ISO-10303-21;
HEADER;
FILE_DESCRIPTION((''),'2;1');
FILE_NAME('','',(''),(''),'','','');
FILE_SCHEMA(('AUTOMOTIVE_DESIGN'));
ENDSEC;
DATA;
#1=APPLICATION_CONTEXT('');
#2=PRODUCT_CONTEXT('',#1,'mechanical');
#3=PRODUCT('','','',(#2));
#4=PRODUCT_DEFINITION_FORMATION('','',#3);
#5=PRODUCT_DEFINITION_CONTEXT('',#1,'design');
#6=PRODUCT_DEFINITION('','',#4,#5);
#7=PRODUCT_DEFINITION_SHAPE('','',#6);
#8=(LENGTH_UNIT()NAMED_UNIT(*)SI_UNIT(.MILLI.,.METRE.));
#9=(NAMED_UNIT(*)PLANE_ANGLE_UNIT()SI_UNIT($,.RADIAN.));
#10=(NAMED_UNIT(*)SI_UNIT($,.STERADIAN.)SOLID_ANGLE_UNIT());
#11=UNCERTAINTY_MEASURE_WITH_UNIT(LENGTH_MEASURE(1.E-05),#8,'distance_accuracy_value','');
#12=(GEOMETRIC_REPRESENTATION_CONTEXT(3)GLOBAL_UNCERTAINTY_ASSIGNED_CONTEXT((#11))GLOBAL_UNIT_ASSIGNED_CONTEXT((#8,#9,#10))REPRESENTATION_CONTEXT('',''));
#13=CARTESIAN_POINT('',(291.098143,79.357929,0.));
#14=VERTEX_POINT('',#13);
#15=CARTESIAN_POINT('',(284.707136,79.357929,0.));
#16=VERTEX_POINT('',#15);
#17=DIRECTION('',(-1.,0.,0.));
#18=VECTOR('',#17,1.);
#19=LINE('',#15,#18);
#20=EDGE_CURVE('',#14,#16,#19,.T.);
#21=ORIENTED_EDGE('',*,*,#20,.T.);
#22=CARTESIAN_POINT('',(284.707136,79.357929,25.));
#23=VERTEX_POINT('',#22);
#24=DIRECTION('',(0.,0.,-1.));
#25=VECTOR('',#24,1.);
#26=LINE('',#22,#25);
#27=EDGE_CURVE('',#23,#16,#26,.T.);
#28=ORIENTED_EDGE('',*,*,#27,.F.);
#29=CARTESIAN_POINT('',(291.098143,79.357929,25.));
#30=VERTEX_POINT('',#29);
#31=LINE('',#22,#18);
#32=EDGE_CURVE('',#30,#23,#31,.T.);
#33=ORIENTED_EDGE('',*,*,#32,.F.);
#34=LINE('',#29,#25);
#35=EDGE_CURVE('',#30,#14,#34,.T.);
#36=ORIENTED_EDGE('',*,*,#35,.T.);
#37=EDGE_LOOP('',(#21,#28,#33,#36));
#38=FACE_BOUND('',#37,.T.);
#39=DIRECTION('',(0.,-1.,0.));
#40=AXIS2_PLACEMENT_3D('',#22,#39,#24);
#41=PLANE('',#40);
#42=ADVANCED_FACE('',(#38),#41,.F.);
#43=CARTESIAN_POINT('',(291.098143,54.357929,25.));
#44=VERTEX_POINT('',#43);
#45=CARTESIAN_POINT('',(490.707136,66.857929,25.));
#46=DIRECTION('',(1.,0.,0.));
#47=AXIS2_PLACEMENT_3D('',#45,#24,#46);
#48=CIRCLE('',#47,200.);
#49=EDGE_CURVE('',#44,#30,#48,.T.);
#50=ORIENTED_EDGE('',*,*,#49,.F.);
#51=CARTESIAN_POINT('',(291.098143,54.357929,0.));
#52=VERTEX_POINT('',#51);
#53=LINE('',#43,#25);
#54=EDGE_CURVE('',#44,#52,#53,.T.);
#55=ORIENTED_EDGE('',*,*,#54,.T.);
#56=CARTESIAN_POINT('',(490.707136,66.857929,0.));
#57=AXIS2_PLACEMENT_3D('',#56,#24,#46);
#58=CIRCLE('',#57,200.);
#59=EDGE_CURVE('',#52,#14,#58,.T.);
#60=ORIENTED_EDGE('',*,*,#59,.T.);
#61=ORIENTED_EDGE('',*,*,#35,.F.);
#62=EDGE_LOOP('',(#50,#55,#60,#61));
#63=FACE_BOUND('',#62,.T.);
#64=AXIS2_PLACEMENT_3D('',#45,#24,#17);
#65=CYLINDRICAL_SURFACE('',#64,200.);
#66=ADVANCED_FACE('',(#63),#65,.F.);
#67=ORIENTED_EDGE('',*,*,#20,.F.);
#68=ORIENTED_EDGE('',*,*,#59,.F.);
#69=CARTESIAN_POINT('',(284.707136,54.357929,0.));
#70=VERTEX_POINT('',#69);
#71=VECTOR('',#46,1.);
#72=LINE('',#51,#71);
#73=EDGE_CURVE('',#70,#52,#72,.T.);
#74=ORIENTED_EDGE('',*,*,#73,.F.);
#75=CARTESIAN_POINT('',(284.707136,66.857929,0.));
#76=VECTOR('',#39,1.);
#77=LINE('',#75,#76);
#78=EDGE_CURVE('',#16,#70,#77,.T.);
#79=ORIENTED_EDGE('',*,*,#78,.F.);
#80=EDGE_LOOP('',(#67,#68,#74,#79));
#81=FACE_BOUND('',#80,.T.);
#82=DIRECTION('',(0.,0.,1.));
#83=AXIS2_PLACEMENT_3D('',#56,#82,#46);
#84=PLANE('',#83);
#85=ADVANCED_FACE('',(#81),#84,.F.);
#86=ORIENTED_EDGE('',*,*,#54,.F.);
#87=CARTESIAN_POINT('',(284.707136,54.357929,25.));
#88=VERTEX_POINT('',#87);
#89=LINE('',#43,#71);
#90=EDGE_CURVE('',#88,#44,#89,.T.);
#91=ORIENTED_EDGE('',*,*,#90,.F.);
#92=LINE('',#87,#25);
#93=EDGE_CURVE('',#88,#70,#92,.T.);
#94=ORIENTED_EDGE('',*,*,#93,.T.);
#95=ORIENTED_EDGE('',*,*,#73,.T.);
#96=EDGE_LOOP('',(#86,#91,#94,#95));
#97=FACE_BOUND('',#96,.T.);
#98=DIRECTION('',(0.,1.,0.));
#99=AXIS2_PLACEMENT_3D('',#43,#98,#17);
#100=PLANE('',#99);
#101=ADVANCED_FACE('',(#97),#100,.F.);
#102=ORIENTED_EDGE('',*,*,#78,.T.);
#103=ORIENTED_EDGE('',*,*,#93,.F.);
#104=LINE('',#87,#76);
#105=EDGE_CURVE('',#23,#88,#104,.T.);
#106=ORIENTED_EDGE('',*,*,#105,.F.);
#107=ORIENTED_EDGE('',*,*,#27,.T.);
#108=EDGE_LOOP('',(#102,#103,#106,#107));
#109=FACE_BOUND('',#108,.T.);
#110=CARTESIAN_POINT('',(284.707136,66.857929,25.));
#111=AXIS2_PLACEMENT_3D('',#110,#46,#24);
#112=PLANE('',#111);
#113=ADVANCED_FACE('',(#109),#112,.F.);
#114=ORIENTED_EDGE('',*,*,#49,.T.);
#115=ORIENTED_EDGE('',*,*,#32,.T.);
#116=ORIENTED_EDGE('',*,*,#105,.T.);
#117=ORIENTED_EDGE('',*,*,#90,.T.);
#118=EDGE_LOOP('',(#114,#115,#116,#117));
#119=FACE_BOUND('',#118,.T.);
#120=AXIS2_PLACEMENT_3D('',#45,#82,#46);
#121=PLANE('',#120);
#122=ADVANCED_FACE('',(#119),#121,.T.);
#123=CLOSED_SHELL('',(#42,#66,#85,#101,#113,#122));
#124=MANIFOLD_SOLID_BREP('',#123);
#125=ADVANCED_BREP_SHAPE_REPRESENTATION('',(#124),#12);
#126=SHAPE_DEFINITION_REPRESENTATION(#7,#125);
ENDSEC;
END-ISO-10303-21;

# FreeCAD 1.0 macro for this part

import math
import FreeCAD as App
import Part
import Sketcher

V = App.Vector

doc = App.newDocument("Part")
body = doc.addObject("PartDesign::Body", "Body")

# Sketch on XY plane
sketch1 = body.newObject("Sketcher::SketchObject", "Sketch")
sketch1.AttachmentSupport = (doc.getObject("XY_Plane"), [""])
sketch1.MapMode = "FlatFace"
sketch1.addGeometry([
    Part.LineSegment(V(291.098143, 79.357929, 0), V(284.707136, 79.357929, 0)),
    Part.LineSegment(V(284.707136, 79.357929, 0), V(284.707136, 54.357929, 0)),
    Part.LineSegment(V(284.707136, 54.357929, 0), V(291.098143, 54.357929, 0)),
    Part.ArcOfCircle(Part.Circle(V(490.707135, 66.857929, 0), V(0, 0, 1), 200), math.radians(176.416678), math.radians(183.583322)),
], False)
sketch1.addConstraint([
    Sketcher.Constraint("Coincident", 0, 2, 1, 1),
    Sketcher.Constraint("Coincident", 1, 2, 2, 1),
    Sketcher.Constraint("Coincident", 2, 2, 3, 2),
    Sketcher.Constraint("Coincident", 3, 1, 0, 1),
    Sketcher.Constraint("Horizontal", 0),
    Sketcher.Constraint("Vertical", 1),
    Sketcher.Constraint("Horizontal", 2),
    Sketcher.Constraint("Vertical", 2, 2, 3, 1),
    Sketcher.Constraint("Radius", 3, 200.0),
    Sketcher.Constraint("DistanceY", 1, 2, 1, 1, 25.0),
    Sketcher.Constraint("DistanceX", 0, 2, 3, 3, 206.0),
    Sketcher.Constraint("DistanceY", -1, 1, 3, 3, 66.857929),
    Sketcher.Constraint("DistanceX", -1, 1, 3, 3, 490.707135),
])
pad1 = body.newObject("PartDesign::Pad", "Pad")
pad1.Profile = sketch1
pad1.Length = 25

doc.recompute()
